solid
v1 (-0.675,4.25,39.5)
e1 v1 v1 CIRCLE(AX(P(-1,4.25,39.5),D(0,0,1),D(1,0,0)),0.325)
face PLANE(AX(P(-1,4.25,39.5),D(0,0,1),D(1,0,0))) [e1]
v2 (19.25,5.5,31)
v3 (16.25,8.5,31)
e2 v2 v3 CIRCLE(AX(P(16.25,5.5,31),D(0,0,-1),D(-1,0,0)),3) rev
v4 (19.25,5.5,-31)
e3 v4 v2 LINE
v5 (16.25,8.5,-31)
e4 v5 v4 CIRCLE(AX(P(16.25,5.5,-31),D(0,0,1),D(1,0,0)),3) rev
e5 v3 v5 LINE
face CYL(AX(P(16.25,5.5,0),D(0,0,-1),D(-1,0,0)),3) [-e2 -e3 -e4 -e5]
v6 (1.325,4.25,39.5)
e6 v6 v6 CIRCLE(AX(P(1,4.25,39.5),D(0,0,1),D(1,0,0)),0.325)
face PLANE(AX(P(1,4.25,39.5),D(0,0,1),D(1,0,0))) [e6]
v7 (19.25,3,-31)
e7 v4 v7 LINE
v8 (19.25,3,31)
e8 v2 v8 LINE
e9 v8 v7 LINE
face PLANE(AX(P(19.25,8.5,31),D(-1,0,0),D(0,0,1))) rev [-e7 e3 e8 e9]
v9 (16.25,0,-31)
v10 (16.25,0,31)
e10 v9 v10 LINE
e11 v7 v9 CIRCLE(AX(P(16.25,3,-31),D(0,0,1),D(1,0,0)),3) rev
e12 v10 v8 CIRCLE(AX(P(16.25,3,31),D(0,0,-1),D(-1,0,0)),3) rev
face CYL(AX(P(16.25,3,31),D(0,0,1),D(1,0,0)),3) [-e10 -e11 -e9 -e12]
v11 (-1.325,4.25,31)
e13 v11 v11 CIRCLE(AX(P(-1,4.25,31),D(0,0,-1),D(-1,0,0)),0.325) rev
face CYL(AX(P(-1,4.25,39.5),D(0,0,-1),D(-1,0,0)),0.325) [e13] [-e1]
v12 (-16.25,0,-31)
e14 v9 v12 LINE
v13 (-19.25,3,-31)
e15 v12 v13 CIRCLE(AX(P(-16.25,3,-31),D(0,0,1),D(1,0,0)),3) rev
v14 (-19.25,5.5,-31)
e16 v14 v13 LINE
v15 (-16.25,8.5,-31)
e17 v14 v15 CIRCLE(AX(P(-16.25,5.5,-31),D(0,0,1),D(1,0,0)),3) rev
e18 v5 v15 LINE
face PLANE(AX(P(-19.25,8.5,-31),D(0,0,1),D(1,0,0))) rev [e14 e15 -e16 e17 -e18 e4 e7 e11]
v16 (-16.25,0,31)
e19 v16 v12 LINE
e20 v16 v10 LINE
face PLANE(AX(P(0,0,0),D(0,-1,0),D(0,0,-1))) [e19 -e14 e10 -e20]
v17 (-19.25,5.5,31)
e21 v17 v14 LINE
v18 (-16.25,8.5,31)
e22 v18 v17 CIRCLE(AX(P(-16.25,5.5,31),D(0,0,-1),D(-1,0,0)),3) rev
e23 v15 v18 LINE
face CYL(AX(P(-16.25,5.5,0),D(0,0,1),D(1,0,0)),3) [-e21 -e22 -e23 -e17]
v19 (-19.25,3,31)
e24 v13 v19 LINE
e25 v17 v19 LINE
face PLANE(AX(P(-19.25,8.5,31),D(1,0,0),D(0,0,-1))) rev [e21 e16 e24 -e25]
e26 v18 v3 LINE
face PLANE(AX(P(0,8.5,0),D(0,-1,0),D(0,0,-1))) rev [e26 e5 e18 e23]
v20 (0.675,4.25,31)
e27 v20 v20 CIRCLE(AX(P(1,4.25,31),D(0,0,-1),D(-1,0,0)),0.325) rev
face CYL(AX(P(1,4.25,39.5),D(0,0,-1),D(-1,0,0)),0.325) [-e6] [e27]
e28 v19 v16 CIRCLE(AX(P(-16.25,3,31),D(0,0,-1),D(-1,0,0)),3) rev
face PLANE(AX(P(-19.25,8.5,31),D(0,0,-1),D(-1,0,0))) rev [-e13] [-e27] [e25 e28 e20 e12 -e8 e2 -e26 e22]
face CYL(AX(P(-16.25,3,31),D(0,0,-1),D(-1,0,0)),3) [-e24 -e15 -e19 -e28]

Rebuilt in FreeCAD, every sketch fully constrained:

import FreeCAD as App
import Part
import Sketcher

V = App.Vector


def edges_at(feature, points):
    """Names of the edges that pass closest to the given points."""
    edges = feature.Shape.Edges
    near = lambda p: min(range(len(edges)), key=lambda i: edges[i].distToShape(Part.Vertex(*p))[0])
    return sorted({f"Edge{near(p) + 1}" for p in points})

doc = App.newDocument("Part")
body = doc.addObject("PartDesign::Body", "Body")

sketch1 = body.newObject("Sketcher::SketchObject", "Sketch")
sketch1.AttachmentSupport = (doc.getObject("XZ_Plane"), [""])
sketch1.MapMode = "FlatFace"
sketch1.addGeometry([
    Part.LineSegment(V(-19, -31, 0), V(-19, 31, 0)),
    Part.LineSegment(V(-19, 31, 0), V(19, 31, 0)),
    Part.LineSegment(V(19, 31, 0), V(19, -31, 0)),
    Part.LineSegment(V(19, -31, 0), V(-19, -31, 0)),
], False)
sketch1.addConstraint([
    Sketcher.Constraint("Coincident", 0, 2, 1, 1),
    Sketcher.Constraint("Coincident", 1, 2, 2, 1),
    Sketcher.Constraint("Coincident", 2, 2, 3, 1),
    Sketcher.Constraint("Coincident", 3, 2, 0, 1),
    Sketcher.Constraint("Vertical", 0),
    Sketcher.Constraint("Horizontal", 1),
    Sketcher.Constraint("Vertical", 2),
    Sketcher.Constraint("Horizontal", 3),
    Sketcher.Constraint("Symmetric", 0, 2, 2, 2, -1, 1),
    Sketcher.Constraint("DistanceY", 0, 1, 0, 2, 62.0),
    Sketcher.Constraint("DistanceX", 1, 1, 1, 2, 38.5),
])
pad1 = body.newObject("PartDesign::Pad", "Pad")
pad1.Profile = sketch1
pad1.Length = 8.5
pad1.Reversed = True
doc.recompute()

fillet = body.newObject("PartDesign::Fillet", "Fillet")
fillet.Base = (pad1, edges_at(pad1, [
    (-19.25, 8.5, 0),
    (19.25, 8.5, 0),
    (-19.25, 0, 0),
    (19.25, 0, 0),
]))
fillet.Radius = 3

sketch2 = body.newObject("Sketcher::SketchObject", "Sketch001")
sketch2.AttachmentSupport = (doc.getObject("XY_Plane"), [""])
sketch2.MapMode = "FlatFace"
sketch2.AttachmentOffset = App.Placement(V(0, 0, 31), App.Rotation())
sketch2.addGeometry([
    Part.Circle(V(-1, 4.25, 0), V(0, 0, 1), 0.33),
    Part.Circle(V(1, 4.25, 0), V(0, 0, 1), 0.33),
], False)
sketch2.addConstraint([
    Sketcher.Constraint("Equal", 0, 1),
    Sketcher.Constraint("Symmetric", 0, 3, 1, 3, -2),
    Sketcher.Constraint("Diameter", 0, 0.65),
    Sketcher.Constraint("DistanceX", 0, 3, -1, 1, 1.0),
    Sketcher.Constraint("DistanceY", -1, 1, 0, 3, 4.25),
])
pad2 = body.newObject("PartDesign::Pad", "Pad001")
pad2.Profile = sketch2
pad2.Length = 8.5

doc.recompute()
